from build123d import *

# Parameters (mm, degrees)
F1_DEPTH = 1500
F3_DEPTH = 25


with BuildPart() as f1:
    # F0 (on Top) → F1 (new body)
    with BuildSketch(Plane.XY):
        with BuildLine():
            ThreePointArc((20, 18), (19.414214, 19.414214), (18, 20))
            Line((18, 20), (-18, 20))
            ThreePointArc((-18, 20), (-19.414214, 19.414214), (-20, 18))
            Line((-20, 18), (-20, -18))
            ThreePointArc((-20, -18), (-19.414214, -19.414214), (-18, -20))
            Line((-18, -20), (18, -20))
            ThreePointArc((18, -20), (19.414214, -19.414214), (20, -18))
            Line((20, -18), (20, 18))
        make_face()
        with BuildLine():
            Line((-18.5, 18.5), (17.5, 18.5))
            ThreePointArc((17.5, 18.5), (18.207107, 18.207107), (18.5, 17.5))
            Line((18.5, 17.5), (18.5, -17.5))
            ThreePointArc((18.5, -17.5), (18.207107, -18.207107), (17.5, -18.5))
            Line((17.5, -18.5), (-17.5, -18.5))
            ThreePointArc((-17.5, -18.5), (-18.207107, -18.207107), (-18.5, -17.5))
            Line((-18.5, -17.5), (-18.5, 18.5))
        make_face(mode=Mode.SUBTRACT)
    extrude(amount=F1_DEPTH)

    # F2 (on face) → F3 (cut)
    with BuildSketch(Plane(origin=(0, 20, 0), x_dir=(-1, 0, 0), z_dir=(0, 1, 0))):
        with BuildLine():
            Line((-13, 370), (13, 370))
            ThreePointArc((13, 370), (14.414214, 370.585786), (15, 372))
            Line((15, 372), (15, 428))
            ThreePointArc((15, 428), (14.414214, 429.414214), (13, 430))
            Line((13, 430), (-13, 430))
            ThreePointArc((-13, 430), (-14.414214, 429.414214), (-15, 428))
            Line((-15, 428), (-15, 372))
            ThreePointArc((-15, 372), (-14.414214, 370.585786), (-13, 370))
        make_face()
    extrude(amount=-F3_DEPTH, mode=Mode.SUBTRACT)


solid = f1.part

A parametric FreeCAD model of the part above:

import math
import FreeCAD as App
import Part
import Sketcher
from FreeCAD import Vector
Q = App.Units.Quantity

doc = App.newDocument("Part")
body = doc.addObject("PartDesign::Body", "Body")

# Sketch on XY plane
sketch1 = body.newObject("Sketcher::SketchObject", "Sketch")
sketch1.AttachmentSupport = (doc.getObject("XY_Plane"), [""])
sketch1.MapMode = "FlatFace"
sketch1.addGeometry(Part.ArcOfCircle(Part.Circle(Vector(18, 18, 0), Vector(0, 0, 1), 2), math.radians(0), math.radians(90)), False)
sketch1.addGeometry(Part.LineSegment(Vector(18, 20, 0), Vector(-18, 20, 0)), False)
sketch1.addGeometry(Part.ArcOfCircle(Part.Circle(Vector(-18, 18, 0), Vector(0, 0, 1), 2), math.radians(90), math.radians(180)), False)
sketch1.addGeometry(Part.LineSegment(Vector(-20, 18, 0), Vector(-20, -18, 0)), False)
sketch1.addGeometry(Part.ArcOfCircle(Part.Circle(Vector(-18, -18, 0), Vector(0, 0, 1), 2), math.radians(180), math.radians(270)), False)
sketch1.addGeometry(Part.LineSegment(Vector(-18, -20, 0), Vector(18, -20, 0)), False)
sketch1.addGeometry(Part.ArcOfCircle(Part.Circle(Vector(18, -18, 0), Vector(0, 0, 1), 2), math.radians(-90), math.radians(0)), False)
sketch1.addGeometry(Part.LineSegment(Vector(20, -18, 0), Vector(20, 18, 0)), False)
sketch1.addGeometry(Part.LineSegment(Vector(-18.5, -17.5, 0), Vector(-18.5, 18.5, 0)), False)
sketch1.addGeometry(Part.LineSegment(Vector(-18.5, 18.5, 0), Vector(17.5, 18.5, 0)), False)
sketch1.addGeometry(Part.ArcOfCircle(Part.Circle(Vector(17.5, 17.5, 0), Vector(0, 0, 1), 1), math.radians(0), math.radians(90)), False)
sketch1.addGeometry(Part.LineSegment(Vector(18.5, 17.5, 0), Vector(18.5, -17.5, 0)), False)
sketch1.addGeometry(Part.ArcOfCircle(Part.Circle(Vector(17.5, -17.5, 0), Vector(0, 0, 1), 1), math.radians(-90), math.radians(0)), False)
sketch1.addGeometry(Part.LineSegment(Vector(17.5, -18.5, 0), Vector(-17.5, -18.5, 0)), False)
sketch1.addGeometry(Part.ArcOfCircle(Part.Circle(Vector(-17.5, -17.5, 0), Vector(0, 0, 1), 1), math.radians(180), math.radians(270)), False)
sketch1.addConstraint(Sketcher.Constraint("Tangent", 0, 2, 1, 1))
sketch1.addConstraint(Sketcher.Constraint("Tangent", 1, 2, 2, 1))
sketch1.addConstraint(Sketcher.Constraint("Tangent", 2, 2, 3, 1))
sketch1.addConstraint(Sketcher.Constraint("Tangent", 3, 2, 4, 1))
sketch1.addConstraint(Sketcher.Constraint("Tangent", 4, 2, 5, 1))
sketch1.addConstraint(Sketcher.Constraint("Tangent", 5, 2, 6, 1))
sketch1.addConstraint(Sketcher.Constraint("Tangent", 6, 2, 7, 1))
sketch1.addConstraint(Sketcher.Constraint("Tangent", 7, 2, 0, 1))
sketch1.addConstraint(Sketcher.Constraint("Coincident", 8, 2, 9, 1))
sketch1.addConstraint(Sketcher.Constraint("Tangent", 9, 2, 10, 2))
sketch1.addConstraint(Sketcher.Constraint("Tangent", 10, 1, 11, 1))
sketch1.addConstraint(Sketcher.Constraint("Tangent", 11, 2, 12, 2))
sketch1.addConstraint(Sketcher.Constraint("Tangent", 12, 1, 13, 1))
sketch1.addConstraint(Sketcher.Constraint("Tangent", 13, 2, 14, 2))
sketch1.addConstraint(Sketcher.Constraint("Tangent", 14, 1, 8, 1))
sketch1.addConstraint(Sketcher.Constraint("Horizontal", 1))
sketch1.addConstraint(Sketcher.Constraint("Vertical", 3))
sketch1.addConstraint(Sketcher.Constraint("Horizontal", 5))
sketch1.addConstraint(Sketcher.Constraint("Vertical", 7))
sketch1.addConstraint(Sketcher.Constraint("Vertical", 8))
sketch1.addConstraint(Sketcher.Constraint("Horizontal", 9))
sketch1.addConstraint(Sketcher.Constraint("Vertical", 11))
sketch1.addConstraint(Sketcher.Constraint("Horizontal", 13))
sketch1.addConstraint(Sketcher.Constraint("Equal", 0, 2))
sketch1.addConstraint(Sketcher.Constraint("Equal", 2, 4))
sketch1.addConstraint(Sketcher.Constraint("Equal", 4, 6))
sketch1.addConstraint(Sketcher.Constraint("Equal", 10, 12))
sketch1.addConstraint(Sketcher.Constraint("Equal", 12, 14))
sketch1.addConstraint(Sketcher.Constraint("Symmetric", 0, 3, 4, 3, -1, 1))
sketch1.addConstraint(Sketcher.Constraint("Symmetric", 10, 3, 14, 3, -1, 1))
sketch1.addConstraint(Sketcher.Constraint("Equal", 5, 9))
sketch1.addConstraint(Sketcher.Constraint("Equal", 9, 3))
sketch1.addConstraint(Sketcher.Constraint("Equal", 7, 8))
sketch1.addConstraint(Sketcher.Constraint("Radius", 0, Q("1.999999 mm")))
sketch1.addConstraint(Sketcher.Constraint("Radius", 10, Q("0.999999 mm")))
sketch1.addConstraint(Sketcher.Constraint("DistanceX", 1, 2, 1, 1, Q("36 mm")))
pad1 = body.newObject("PartDesign::Pad", "Pad")
pad1.Profile = sketch1
pad1.Length = 1500

# Sketch on XZ plane
sketch2 = body.newObject("Sketcher::SketchObject", "Sketch001")
sketch2.AttachmentSupport = (doc.getObject("XZ_Plane"), [""])
sketch2.MapMode = "FlatFace"
sketch2.AttachmentOffset = App.Placement(Vector(0, 0, -20), App.Rotation())
sketch2.addGeometry(Part.LineSegment(Vector(13, 370, 0), Vector(-13, 370, 0)), False)
sketch2.addGeometry(Part.ArcOfCircle(Part.Circle(Vector(-13, 372, 0), Vector(0, 0, 1), 2), math.radians(180), math.radians(270)), False)
sketch2.addGeometry(Part.LineSegment(Vector(-15, 372, 0), Vector(-15, 428, 0)), False)
sketch2.addGeometry(Part.ArcOfCircle(Part.Circle(Vector(-13, 428, 0), Vector(0, 0, 1), 2), math.radians(90), math.radians(180)), False)
sketch2.addGeometry(Part.LineSegment(Vector(-13, 430, 0), Vector(13, 430, 0)), False)
sketch2.addGeometry(Part.ArcOfCircle(Part.Circle(Vector(13, 428, 0), Vector(0, 0, 1), 2), math.radians(0), math.radians(90)), False)
sketch2.addGeometry(Part.LineSegment(Vector(15, 428, 0), Vector(15, 372, 0)), False)
sketch2.addGeometry(Part.ArcOfCircle(Part.Circle(Vector(13, 372, 0), Vector(0, 0, 1), 2), math.radians(-90), math.radians(0)), False)
sketch2.addConstraint(Sketcher.Constraint("Tangent", 0, 2, 1, 2))
sketch2.addConstraint(Sketcher.Constraint("Tangent", 1, 1, 2, 1))
sketch2.addConstraint(Sketcher.Constraint("Tangent", 2, 2, 3, 2))
sketch2.addConstraint(Sketcher.Constraint("Tangent", 3, 1, 4, 1))
sketch2.addConstraint(Sketcher.Constraint("Tangent", 4, 2, 5, 2))
sketch2.addConstraint(Sketcher.Constraint("Tangent", 5, 1, 6, 1))
sketch2.addConstraint(Sketcher.Constraint("Tangent", 6, 2, 7, 2))
sketch2.addConstraint(Sketcher.Constraint("Tangent", 7, 1, 0, 1))
sketch2.addConstraint(Sketcher.Constraint("Horizontal", 0))
sketch2.addConstraint(Sketcher.Constraint("Vertical", 2))
sketch2.addConstraint(Sketcher.Constraint("Horizontal", 4))
sketch2.addConstraint(Sketcher.Constraint("Vertical", 6))
sketch2.addConstraint(Sketcher.Constraint("Equal", 1, 3))
sketch2.addConstraint(Sketcher.Constraint("Equal", 3, 5))
sketch2.addConstraint(Sketcher.Constraint("Equal", 5, 7))
sketch2.addConstraint(Sketcher.Constraint("Radius", 1, Q("1.999999 mm")))
sketch2.addConstraint(Sketcher.Constraint("DistanceX", 0, 2, 0, 1, Q("26 mm")))
sketch2.addConstraint(Sketcher.Constraint("DistanceY", 2, 1, 2, 2, Q("56 mm")))
sketch2.addConstraint(Sketcher.Constraint("DistanceX", 1, 3, -1, 1, Q("13.000001 mm")))
sketch2.addConstraint(Sketcher.Constraint("DistanceY", -1, 1, 1, 3, Q("371.999999 mm")))
pocket1 = body.newObject("PartDesign::Pocket", "Pocket")
pocket1.Profile = sketch2
pocket1.Length = 25
pocket1.Reversed = True

doc.recompute()
